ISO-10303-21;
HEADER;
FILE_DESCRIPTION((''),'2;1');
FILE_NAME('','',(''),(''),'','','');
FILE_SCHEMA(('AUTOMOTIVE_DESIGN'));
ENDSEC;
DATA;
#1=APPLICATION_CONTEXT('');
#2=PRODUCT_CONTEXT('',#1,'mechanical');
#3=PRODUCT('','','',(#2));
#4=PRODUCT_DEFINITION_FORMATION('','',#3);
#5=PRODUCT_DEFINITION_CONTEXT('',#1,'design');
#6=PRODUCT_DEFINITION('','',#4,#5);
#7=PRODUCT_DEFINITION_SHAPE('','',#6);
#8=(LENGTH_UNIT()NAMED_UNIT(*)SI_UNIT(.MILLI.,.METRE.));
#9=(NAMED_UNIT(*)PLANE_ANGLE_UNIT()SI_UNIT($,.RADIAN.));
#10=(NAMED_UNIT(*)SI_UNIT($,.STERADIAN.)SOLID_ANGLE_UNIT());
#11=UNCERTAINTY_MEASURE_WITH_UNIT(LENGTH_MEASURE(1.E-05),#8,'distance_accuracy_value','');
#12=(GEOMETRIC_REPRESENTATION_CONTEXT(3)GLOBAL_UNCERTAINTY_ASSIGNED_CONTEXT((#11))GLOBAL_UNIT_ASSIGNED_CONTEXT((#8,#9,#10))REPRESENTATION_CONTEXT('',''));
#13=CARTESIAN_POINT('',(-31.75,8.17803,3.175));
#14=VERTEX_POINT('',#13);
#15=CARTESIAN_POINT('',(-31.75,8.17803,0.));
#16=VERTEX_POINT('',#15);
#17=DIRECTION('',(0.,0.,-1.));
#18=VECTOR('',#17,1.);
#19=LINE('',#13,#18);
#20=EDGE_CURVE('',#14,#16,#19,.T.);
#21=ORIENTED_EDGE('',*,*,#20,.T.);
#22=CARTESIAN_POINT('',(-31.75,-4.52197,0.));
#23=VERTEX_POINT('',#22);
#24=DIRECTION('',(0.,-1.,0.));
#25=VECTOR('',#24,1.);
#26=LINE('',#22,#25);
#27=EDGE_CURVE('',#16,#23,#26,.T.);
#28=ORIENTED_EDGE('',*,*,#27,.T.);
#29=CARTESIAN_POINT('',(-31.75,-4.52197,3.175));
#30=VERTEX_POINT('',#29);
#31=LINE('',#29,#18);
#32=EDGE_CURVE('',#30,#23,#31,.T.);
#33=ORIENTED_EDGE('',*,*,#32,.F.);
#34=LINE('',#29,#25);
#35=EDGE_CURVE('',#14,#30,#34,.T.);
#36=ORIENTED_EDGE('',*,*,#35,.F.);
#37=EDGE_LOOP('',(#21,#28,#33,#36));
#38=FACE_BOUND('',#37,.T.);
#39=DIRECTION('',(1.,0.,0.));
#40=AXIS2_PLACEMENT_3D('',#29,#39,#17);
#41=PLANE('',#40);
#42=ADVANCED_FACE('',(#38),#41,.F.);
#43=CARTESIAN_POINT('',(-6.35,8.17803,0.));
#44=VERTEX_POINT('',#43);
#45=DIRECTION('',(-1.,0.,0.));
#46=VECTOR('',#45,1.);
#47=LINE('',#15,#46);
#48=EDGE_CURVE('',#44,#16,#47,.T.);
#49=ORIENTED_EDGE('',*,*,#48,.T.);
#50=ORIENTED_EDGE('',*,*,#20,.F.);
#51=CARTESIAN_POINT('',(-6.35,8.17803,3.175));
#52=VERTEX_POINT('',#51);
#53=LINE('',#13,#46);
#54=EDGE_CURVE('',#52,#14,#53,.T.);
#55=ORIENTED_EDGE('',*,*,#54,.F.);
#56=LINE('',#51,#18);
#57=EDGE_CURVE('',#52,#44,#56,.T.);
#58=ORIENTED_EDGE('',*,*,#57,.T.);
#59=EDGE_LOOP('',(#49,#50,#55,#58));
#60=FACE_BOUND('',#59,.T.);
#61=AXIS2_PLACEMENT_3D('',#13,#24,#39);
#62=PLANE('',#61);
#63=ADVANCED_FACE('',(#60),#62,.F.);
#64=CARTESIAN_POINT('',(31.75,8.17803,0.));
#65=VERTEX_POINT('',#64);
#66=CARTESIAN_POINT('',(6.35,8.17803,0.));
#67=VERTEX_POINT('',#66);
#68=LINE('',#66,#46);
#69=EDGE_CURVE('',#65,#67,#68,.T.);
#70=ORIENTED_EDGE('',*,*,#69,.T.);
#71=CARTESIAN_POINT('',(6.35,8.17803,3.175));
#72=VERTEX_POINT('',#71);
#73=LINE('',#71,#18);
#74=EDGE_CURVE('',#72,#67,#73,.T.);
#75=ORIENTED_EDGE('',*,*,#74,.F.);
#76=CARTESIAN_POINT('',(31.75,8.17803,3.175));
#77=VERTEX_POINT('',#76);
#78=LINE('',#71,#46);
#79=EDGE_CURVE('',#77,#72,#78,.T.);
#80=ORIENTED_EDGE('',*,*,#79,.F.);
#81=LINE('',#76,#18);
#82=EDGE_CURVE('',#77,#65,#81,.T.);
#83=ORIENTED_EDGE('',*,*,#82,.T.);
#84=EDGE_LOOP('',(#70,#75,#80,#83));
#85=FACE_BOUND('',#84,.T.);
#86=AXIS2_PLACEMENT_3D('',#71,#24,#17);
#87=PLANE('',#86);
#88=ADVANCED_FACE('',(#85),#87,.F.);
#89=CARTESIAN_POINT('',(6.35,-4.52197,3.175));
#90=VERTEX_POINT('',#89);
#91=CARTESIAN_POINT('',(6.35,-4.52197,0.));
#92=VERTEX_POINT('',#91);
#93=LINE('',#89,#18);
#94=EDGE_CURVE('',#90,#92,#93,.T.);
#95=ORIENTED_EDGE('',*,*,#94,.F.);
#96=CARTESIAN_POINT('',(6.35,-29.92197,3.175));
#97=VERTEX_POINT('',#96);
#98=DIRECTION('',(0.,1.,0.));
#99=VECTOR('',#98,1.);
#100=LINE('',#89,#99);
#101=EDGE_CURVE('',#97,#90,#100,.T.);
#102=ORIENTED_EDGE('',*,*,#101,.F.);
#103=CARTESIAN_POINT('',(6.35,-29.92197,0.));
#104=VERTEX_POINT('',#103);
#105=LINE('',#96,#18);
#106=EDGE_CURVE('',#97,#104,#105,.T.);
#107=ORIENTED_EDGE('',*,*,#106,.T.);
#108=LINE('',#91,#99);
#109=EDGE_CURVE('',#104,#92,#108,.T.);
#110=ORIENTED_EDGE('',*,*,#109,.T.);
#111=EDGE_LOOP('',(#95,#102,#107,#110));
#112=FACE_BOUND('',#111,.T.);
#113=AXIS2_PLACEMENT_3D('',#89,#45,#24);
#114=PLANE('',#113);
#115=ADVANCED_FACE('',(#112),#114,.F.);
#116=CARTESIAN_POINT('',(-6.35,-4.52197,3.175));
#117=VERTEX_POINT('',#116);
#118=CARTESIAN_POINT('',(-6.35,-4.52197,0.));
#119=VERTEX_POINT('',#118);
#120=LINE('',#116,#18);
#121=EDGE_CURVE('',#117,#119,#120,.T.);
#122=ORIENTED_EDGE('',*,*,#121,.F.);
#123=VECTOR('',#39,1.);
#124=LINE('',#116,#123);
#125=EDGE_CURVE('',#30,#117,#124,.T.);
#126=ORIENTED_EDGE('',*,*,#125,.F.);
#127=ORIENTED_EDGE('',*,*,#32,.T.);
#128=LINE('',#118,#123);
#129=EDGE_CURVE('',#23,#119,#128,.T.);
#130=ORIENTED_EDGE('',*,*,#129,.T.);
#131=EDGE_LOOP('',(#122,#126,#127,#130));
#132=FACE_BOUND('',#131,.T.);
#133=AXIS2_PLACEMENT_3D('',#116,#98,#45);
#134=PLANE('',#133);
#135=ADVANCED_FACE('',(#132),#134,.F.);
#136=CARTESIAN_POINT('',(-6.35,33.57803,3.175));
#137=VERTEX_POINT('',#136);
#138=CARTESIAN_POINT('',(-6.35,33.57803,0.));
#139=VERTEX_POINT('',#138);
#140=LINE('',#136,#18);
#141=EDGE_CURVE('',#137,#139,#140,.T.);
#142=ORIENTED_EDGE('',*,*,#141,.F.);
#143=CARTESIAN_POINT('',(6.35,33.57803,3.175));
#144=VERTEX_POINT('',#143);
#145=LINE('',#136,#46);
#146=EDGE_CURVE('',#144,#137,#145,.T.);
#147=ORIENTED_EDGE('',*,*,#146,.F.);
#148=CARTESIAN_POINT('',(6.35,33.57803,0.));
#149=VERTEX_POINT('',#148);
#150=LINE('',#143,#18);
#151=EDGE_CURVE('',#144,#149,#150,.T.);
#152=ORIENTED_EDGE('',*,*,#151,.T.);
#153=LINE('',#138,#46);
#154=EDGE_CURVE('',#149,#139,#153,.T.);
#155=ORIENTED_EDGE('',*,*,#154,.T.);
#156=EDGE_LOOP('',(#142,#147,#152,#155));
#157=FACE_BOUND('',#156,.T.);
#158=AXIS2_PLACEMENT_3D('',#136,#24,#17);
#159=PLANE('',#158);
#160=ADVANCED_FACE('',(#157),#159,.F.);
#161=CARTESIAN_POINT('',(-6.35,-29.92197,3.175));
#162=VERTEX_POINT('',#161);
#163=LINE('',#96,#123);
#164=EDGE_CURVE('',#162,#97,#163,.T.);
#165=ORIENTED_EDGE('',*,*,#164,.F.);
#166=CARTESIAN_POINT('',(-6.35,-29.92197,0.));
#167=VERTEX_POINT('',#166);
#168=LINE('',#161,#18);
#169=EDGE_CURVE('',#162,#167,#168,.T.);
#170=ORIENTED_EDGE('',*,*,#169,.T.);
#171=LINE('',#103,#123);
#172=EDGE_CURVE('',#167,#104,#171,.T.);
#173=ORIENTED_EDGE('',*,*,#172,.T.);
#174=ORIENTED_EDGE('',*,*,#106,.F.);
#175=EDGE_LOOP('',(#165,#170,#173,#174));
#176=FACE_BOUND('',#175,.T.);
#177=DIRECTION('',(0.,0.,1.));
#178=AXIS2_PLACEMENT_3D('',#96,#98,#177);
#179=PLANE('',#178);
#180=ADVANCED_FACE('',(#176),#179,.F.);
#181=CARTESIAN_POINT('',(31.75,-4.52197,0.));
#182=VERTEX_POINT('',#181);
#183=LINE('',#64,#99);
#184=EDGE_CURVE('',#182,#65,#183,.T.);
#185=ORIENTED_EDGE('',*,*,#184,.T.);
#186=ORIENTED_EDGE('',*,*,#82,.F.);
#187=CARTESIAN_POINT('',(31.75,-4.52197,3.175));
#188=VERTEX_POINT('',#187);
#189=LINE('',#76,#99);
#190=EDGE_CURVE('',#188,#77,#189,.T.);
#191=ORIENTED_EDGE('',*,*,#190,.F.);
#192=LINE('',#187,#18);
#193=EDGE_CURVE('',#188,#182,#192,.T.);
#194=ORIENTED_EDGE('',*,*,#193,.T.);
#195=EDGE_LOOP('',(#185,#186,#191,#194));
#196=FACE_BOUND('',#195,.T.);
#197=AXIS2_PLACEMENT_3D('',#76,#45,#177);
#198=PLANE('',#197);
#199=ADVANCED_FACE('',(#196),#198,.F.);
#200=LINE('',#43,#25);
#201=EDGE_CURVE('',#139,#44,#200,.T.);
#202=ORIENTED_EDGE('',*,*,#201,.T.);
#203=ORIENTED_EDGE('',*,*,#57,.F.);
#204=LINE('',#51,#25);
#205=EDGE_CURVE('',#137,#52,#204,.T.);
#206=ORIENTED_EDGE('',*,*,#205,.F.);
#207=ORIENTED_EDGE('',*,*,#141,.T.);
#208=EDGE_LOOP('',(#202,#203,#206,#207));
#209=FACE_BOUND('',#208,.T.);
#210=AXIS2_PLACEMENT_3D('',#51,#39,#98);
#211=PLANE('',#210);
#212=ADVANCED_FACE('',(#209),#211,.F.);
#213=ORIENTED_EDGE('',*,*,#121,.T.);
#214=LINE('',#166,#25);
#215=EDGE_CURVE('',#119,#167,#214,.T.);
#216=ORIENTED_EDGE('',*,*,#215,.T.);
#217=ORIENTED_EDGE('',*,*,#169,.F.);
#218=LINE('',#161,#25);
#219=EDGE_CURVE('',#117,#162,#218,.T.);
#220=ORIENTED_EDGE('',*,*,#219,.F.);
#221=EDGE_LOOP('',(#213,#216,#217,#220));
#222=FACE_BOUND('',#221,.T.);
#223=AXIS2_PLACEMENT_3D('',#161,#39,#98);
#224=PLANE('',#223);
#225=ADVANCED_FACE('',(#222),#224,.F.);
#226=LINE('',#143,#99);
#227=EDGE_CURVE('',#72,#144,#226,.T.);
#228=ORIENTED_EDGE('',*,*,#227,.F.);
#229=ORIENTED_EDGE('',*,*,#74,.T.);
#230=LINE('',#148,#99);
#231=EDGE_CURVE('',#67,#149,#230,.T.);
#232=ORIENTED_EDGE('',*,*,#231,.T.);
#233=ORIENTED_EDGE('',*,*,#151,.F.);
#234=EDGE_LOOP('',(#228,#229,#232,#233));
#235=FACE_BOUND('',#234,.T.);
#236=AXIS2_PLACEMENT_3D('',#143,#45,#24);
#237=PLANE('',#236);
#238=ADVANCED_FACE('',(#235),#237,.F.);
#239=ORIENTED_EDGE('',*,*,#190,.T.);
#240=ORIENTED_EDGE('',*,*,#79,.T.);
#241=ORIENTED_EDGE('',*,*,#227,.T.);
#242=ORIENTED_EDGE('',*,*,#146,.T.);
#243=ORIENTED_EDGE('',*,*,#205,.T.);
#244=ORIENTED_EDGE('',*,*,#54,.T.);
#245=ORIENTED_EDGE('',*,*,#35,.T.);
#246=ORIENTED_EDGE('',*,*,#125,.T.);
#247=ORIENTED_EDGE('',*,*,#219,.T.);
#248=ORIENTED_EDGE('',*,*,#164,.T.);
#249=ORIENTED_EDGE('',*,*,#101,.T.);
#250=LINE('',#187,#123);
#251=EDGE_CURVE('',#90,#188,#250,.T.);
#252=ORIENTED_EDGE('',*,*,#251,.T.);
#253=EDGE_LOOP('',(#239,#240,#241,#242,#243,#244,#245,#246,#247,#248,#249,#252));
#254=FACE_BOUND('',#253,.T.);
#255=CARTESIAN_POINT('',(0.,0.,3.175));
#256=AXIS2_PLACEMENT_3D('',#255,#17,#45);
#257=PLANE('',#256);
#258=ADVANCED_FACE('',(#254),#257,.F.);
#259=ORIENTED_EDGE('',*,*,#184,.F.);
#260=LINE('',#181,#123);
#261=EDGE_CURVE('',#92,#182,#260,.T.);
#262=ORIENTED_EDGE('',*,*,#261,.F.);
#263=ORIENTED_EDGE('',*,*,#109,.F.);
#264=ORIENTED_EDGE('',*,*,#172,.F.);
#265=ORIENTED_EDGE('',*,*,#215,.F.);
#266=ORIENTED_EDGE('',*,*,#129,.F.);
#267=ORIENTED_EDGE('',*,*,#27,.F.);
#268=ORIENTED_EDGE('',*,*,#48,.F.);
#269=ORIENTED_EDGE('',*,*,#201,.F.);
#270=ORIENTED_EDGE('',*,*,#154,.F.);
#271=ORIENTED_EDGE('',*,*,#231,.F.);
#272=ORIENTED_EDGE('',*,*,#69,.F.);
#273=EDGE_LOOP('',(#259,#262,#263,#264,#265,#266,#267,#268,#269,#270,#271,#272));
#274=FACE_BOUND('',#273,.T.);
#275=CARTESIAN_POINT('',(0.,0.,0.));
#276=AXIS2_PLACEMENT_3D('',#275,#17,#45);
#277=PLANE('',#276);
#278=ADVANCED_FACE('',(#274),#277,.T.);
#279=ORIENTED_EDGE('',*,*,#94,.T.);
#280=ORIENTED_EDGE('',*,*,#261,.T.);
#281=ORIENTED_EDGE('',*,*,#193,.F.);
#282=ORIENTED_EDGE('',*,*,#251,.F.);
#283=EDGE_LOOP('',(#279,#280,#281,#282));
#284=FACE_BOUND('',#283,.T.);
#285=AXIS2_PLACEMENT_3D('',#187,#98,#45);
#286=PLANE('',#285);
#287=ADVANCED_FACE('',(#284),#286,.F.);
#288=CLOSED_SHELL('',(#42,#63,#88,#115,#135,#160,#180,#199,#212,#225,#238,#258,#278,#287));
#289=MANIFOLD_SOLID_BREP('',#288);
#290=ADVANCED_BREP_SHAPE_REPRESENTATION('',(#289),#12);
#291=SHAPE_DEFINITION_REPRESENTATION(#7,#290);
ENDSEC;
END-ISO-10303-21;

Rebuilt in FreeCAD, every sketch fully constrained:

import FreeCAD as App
import Part
import Sketcher

V = App.Vector
Q = App.Units.Quantity


def add_polygon(sketch, points):
    """Adds a closed chain of lines whose ends are joined by coincident constraints."""
    first, n = sketch.GeometryCount, len(points)
    for a, b in zip(points, points[1:] + points[:1]):
        sketch.addGeometry(Part.LineSegment(App.Vector(*a, 0), App.Vector(*b, 0)), False)
    for i in range(n):
        sketch.addConstraint(Sketcher.Constraint("Coincident", first + i, 2, first + (i + 1) % n, 1))

doc = App.newDocument("Part")
params = doc.addObject("Spreadsheet::Sheet", "Params")
for row, (alias, value) in enumerate([
    ("sketch1_width", "1 in"),
    ("sketch1_width2", "0.5 in"),
    ("pad1_length", "0.125 in"),
], start=1):
    params.set(f"A{row}", alias)
    params.set(f"B{row}", "=" + value)
    params.setAlias(f"B{row}", alias)

body = doc.addObject("PartDesign::Body", "Body")

sketch1 = doc.addObject("Sketcher::SketchObject", "Sketch")
body.addObject(sketch1)
sketch1.AttachmentSupport = (doc.XY_Plane, [""])
sketch1.MapMode = "FlatFace"
add_polygon(sketch1, [(6, 34), (-6, 34), (-6, 8), (-32, 8), (-32, -5), (-6, -5), (-6, -30), (6, -30), (6, -5), (32, -5), (32, 8), (6, 8)])
sketch1.addConstraint([
    Sketcher.Constraint("Horizontal", 0),
    Sketcher.Constraint("Vertical", 1),
    Sketcher.Constraint("Horizontal", 2),
    Sketcher.Constraint("Vertical", 3),
    Sketcher.Constraint("Horizontal", 4),
    Sketcher.Constraint("Vertical", 5),
    Sketcher.Constraint("Horizontal", 6),
    Sketcher.Constraint("Vertical", 7),
    Sketcher.Constraint("Horizontal", 8),
    Sketcher.Constraint("Vertical", 9),
    Sketcher.Constraint("Horizontal", 10),
    Sketcher.Constraint("Vertical", 11),
    Sketcher.Constraint("Symmetric", 4, 2, 7, 2, -2),
    Sketcher.Constraint("Symmetric", 2, 2, 9, 2, -2),
    Sketcher.Constraint("Vertical", 1, 2, 4, 2),
    Sketcher.Constraint("Vertical", 7, 2, 10, 2),
    Sketcher.Constraint("Equal", 10, 1),
    Sketcher.Constraint("Equal", 6, 3),
    Sketcher.Constraint("Equal", 1, 5),
    Sketcher.Constraint("DistanceX", 2, 2, 2, 1, Q("1 in")),
    Sketcher.Constraint("DistanceX", 0, 2, 0, 1, Q("0.5 in")),
    Sketcher.Constraint("DistanceY", -1, 1, 0, 2, Q("33.57803 mm")),
])
sketch1.setExpression("Constraints[31]", "Params.sketch1_width")
sketch1.setExpression("Constraints[32]", "Params.sketch1_width2")
pad1 = doc.addObject("PartDesign::Pad", "Pad")
body.addObject(pad1)
pad1.Profile = sketch1
pad1.setExpression("Length", "Params.pad1_length")

doc.recompute()
